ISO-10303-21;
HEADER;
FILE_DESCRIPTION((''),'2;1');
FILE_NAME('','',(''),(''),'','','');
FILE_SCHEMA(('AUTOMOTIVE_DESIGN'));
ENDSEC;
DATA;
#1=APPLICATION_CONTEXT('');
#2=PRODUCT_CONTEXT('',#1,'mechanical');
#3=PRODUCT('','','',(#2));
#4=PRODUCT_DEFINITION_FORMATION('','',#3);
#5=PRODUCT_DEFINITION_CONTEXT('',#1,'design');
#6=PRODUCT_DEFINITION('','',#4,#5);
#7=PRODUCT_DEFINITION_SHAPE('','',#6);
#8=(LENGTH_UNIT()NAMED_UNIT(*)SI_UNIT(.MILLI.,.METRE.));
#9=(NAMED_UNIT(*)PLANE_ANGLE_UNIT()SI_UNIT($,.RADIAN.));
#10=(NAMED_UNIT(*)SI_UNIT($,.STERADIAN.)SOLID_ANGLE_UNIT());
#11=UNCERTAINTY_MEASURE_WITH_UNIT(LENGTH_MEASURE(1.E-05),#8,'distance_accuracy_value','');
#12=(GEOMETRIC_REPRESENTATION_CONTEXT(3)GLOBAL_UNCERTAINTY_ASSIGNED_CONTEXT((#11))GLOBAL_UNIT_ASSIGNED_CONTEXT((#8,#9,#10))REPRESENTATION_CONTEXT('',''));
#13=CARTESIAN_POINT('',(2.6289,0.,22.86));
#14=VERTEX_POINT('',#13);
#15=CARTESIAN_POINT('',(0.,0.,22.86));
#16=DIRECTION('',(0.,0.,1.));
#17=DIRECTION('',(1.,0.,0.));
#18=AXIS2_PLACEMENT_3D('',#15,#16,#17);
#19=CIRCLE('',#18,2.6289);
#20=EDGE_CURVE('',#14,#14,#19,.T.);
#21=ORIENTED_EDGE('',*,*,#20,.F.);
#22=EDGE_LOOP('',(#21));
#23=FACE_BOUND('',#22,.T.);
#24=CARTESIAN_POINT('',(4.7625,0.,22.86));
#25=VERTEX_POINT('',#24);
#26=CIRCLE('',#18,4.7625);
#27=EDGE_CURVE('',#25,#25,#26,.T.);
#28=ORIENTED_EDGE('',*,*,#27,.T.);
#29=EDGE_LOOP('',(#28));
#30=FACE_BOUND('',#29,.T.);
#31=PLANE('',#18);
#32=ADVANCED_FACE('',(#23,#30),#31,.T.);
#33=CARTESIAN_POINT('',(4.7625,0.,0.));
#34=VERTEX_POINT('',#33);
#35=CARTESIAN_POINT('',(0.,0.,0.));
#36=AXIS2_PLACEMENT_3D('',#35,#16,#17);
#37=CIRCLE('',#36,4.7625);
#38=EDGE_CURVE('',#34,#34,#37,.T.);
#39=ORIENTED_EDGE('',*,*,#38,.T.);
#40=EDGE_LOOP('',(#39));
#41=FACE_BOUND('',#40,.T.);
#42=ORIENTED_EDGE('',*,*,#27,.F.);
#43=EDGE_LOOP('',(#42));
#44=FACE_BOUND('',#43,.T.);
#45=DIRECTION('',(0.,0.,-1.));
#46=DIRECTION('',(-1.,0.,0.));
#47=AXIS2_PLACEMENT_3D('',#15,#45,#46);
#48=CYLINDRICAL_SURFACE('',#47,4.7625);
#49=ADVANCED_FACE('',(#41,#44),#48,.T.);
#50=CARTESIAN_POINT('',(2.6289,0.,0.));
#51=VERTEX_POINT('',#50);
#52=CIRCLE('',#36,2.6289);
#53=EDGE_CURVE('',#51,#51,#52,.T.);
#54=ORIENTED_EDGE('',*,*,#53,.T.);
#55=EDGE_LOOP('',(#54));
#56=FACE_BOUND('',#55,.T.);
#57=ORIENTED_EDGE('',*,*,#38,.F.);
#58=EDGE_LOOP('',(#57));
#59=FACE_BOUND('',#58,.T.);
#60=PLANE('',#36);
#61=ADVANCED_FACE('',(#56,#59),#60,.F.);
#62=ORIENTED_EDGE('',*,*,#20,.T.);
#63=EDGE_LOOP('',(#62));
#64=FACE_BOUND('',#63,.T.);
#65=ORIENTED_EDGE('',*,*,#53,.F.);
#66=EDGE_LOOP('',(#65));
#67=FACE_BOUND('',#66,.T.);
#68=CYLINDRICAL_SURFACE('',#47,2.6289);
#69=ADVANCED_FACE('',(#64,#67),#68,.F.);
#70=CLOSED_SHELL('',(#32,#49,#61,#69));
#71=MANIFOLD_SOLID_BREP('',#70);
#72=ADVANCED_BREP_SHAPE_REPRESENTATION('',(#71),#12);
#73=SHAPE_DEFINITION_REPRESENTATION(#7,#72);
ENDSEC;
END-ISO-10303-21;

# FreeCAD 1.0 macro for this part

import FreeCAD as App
import Part
import Sketcher
from FreeCAD import Vector
Q = App.Units.Quantity

doc = App.newDocument("Part")
body = doc.addObject("PartDesign::Body", "Body")

sketch1 = body.newObject("Sketcher::SketchObject", "Sketch")
sketch1.AttachmentSupport = (doc.getObject("XY_Plane"), [""])
sketch1.MapMode = "FlatFace"
sketch1.addGeometry(Part.Circle(Vector(0, 0, 0), Vector(0, 0, 1), 4.8), False)
sketch1.addGeometry(Part.Circle(Vector(0, 0, 0), Vector(0, 0, 1), 2.6), False)
sketch1.addConstraint(Sketcher.Constraint("Coincident", 0, 3, -1, 1))
sketch1.addConstraint(Sketcher.Constraint("Coincident", 1, 3, -1, 1))
sketch1.addConstraint(Sketcher.Constraint("Diameter", 0, Q("0.375 in")))
sketch1.addConstraint(Sketcher.Constraint("Diameter", 1, Q("0.207 in")))
pad1 = body.newObject("PartDesign::Pad", "Pad")
pad1.Profile = sketch1
pad1.Length = Q("0.9 in")

doc.recompute()
